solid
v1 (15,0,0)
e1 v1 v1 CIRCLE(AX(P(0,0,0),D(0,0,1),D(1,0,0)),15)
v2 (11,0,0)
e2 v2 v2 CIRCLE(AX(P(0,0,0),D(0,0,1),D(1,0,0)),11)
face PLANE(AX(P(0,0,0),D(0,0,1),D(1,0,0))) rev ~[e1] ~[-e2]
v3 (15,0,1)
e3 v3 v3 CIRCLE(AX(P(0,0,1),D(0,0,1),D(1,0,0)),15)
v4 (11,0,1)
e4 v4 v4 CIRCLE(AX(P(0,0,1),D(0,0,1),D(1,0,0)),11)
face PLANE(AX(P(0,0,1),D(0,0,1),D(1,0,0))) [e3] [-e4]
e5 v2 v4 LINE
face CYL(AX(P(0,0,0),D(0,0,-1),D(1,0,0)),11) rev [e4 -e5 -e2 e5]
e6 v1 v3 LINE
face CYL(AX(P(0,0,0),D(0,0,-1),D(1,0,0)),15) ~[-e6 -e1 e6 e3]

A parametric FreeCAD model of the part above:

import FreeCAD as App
import Part
import Sketcher

V = App.Vector

doc = App.newDocument("Part")
body = doc.addObject("PartDesign::Body", "Body")

sketch1 = doc.addObject("Sketcher::SketchObject", "Sketch")
body.addObject(sketch1)
sketch1.AttachmentSupport = (doc.XY_Plane, [""])
sketch1.MapMode = "FlatFace"
sketch1.addGeometry([
    Part.Circle(V(0, 0, 0), V(0, 0, 1), 15),
    Part.Circle(V(0, 0, 0), V(0, 0, 1), 11),
], False)
sketch1.addConstraint([
    Sketcher.Constraint("Coincident", 0, 3, -1, 1),
    Sketcher.Constraint("Coincident", 1, 3, -1, 1),
    Sketcher.Constraint("Diameter", 0, 30.0),
    Sketcher.Constraint("Diameter", 1, 22.0),
])
pad1 = doc.addObject("PartDesign::Pad", "Pad")
body.addObject(pad1)
pad1.Profile = sketch1
pad1.Length = 1

doc.recompute()
